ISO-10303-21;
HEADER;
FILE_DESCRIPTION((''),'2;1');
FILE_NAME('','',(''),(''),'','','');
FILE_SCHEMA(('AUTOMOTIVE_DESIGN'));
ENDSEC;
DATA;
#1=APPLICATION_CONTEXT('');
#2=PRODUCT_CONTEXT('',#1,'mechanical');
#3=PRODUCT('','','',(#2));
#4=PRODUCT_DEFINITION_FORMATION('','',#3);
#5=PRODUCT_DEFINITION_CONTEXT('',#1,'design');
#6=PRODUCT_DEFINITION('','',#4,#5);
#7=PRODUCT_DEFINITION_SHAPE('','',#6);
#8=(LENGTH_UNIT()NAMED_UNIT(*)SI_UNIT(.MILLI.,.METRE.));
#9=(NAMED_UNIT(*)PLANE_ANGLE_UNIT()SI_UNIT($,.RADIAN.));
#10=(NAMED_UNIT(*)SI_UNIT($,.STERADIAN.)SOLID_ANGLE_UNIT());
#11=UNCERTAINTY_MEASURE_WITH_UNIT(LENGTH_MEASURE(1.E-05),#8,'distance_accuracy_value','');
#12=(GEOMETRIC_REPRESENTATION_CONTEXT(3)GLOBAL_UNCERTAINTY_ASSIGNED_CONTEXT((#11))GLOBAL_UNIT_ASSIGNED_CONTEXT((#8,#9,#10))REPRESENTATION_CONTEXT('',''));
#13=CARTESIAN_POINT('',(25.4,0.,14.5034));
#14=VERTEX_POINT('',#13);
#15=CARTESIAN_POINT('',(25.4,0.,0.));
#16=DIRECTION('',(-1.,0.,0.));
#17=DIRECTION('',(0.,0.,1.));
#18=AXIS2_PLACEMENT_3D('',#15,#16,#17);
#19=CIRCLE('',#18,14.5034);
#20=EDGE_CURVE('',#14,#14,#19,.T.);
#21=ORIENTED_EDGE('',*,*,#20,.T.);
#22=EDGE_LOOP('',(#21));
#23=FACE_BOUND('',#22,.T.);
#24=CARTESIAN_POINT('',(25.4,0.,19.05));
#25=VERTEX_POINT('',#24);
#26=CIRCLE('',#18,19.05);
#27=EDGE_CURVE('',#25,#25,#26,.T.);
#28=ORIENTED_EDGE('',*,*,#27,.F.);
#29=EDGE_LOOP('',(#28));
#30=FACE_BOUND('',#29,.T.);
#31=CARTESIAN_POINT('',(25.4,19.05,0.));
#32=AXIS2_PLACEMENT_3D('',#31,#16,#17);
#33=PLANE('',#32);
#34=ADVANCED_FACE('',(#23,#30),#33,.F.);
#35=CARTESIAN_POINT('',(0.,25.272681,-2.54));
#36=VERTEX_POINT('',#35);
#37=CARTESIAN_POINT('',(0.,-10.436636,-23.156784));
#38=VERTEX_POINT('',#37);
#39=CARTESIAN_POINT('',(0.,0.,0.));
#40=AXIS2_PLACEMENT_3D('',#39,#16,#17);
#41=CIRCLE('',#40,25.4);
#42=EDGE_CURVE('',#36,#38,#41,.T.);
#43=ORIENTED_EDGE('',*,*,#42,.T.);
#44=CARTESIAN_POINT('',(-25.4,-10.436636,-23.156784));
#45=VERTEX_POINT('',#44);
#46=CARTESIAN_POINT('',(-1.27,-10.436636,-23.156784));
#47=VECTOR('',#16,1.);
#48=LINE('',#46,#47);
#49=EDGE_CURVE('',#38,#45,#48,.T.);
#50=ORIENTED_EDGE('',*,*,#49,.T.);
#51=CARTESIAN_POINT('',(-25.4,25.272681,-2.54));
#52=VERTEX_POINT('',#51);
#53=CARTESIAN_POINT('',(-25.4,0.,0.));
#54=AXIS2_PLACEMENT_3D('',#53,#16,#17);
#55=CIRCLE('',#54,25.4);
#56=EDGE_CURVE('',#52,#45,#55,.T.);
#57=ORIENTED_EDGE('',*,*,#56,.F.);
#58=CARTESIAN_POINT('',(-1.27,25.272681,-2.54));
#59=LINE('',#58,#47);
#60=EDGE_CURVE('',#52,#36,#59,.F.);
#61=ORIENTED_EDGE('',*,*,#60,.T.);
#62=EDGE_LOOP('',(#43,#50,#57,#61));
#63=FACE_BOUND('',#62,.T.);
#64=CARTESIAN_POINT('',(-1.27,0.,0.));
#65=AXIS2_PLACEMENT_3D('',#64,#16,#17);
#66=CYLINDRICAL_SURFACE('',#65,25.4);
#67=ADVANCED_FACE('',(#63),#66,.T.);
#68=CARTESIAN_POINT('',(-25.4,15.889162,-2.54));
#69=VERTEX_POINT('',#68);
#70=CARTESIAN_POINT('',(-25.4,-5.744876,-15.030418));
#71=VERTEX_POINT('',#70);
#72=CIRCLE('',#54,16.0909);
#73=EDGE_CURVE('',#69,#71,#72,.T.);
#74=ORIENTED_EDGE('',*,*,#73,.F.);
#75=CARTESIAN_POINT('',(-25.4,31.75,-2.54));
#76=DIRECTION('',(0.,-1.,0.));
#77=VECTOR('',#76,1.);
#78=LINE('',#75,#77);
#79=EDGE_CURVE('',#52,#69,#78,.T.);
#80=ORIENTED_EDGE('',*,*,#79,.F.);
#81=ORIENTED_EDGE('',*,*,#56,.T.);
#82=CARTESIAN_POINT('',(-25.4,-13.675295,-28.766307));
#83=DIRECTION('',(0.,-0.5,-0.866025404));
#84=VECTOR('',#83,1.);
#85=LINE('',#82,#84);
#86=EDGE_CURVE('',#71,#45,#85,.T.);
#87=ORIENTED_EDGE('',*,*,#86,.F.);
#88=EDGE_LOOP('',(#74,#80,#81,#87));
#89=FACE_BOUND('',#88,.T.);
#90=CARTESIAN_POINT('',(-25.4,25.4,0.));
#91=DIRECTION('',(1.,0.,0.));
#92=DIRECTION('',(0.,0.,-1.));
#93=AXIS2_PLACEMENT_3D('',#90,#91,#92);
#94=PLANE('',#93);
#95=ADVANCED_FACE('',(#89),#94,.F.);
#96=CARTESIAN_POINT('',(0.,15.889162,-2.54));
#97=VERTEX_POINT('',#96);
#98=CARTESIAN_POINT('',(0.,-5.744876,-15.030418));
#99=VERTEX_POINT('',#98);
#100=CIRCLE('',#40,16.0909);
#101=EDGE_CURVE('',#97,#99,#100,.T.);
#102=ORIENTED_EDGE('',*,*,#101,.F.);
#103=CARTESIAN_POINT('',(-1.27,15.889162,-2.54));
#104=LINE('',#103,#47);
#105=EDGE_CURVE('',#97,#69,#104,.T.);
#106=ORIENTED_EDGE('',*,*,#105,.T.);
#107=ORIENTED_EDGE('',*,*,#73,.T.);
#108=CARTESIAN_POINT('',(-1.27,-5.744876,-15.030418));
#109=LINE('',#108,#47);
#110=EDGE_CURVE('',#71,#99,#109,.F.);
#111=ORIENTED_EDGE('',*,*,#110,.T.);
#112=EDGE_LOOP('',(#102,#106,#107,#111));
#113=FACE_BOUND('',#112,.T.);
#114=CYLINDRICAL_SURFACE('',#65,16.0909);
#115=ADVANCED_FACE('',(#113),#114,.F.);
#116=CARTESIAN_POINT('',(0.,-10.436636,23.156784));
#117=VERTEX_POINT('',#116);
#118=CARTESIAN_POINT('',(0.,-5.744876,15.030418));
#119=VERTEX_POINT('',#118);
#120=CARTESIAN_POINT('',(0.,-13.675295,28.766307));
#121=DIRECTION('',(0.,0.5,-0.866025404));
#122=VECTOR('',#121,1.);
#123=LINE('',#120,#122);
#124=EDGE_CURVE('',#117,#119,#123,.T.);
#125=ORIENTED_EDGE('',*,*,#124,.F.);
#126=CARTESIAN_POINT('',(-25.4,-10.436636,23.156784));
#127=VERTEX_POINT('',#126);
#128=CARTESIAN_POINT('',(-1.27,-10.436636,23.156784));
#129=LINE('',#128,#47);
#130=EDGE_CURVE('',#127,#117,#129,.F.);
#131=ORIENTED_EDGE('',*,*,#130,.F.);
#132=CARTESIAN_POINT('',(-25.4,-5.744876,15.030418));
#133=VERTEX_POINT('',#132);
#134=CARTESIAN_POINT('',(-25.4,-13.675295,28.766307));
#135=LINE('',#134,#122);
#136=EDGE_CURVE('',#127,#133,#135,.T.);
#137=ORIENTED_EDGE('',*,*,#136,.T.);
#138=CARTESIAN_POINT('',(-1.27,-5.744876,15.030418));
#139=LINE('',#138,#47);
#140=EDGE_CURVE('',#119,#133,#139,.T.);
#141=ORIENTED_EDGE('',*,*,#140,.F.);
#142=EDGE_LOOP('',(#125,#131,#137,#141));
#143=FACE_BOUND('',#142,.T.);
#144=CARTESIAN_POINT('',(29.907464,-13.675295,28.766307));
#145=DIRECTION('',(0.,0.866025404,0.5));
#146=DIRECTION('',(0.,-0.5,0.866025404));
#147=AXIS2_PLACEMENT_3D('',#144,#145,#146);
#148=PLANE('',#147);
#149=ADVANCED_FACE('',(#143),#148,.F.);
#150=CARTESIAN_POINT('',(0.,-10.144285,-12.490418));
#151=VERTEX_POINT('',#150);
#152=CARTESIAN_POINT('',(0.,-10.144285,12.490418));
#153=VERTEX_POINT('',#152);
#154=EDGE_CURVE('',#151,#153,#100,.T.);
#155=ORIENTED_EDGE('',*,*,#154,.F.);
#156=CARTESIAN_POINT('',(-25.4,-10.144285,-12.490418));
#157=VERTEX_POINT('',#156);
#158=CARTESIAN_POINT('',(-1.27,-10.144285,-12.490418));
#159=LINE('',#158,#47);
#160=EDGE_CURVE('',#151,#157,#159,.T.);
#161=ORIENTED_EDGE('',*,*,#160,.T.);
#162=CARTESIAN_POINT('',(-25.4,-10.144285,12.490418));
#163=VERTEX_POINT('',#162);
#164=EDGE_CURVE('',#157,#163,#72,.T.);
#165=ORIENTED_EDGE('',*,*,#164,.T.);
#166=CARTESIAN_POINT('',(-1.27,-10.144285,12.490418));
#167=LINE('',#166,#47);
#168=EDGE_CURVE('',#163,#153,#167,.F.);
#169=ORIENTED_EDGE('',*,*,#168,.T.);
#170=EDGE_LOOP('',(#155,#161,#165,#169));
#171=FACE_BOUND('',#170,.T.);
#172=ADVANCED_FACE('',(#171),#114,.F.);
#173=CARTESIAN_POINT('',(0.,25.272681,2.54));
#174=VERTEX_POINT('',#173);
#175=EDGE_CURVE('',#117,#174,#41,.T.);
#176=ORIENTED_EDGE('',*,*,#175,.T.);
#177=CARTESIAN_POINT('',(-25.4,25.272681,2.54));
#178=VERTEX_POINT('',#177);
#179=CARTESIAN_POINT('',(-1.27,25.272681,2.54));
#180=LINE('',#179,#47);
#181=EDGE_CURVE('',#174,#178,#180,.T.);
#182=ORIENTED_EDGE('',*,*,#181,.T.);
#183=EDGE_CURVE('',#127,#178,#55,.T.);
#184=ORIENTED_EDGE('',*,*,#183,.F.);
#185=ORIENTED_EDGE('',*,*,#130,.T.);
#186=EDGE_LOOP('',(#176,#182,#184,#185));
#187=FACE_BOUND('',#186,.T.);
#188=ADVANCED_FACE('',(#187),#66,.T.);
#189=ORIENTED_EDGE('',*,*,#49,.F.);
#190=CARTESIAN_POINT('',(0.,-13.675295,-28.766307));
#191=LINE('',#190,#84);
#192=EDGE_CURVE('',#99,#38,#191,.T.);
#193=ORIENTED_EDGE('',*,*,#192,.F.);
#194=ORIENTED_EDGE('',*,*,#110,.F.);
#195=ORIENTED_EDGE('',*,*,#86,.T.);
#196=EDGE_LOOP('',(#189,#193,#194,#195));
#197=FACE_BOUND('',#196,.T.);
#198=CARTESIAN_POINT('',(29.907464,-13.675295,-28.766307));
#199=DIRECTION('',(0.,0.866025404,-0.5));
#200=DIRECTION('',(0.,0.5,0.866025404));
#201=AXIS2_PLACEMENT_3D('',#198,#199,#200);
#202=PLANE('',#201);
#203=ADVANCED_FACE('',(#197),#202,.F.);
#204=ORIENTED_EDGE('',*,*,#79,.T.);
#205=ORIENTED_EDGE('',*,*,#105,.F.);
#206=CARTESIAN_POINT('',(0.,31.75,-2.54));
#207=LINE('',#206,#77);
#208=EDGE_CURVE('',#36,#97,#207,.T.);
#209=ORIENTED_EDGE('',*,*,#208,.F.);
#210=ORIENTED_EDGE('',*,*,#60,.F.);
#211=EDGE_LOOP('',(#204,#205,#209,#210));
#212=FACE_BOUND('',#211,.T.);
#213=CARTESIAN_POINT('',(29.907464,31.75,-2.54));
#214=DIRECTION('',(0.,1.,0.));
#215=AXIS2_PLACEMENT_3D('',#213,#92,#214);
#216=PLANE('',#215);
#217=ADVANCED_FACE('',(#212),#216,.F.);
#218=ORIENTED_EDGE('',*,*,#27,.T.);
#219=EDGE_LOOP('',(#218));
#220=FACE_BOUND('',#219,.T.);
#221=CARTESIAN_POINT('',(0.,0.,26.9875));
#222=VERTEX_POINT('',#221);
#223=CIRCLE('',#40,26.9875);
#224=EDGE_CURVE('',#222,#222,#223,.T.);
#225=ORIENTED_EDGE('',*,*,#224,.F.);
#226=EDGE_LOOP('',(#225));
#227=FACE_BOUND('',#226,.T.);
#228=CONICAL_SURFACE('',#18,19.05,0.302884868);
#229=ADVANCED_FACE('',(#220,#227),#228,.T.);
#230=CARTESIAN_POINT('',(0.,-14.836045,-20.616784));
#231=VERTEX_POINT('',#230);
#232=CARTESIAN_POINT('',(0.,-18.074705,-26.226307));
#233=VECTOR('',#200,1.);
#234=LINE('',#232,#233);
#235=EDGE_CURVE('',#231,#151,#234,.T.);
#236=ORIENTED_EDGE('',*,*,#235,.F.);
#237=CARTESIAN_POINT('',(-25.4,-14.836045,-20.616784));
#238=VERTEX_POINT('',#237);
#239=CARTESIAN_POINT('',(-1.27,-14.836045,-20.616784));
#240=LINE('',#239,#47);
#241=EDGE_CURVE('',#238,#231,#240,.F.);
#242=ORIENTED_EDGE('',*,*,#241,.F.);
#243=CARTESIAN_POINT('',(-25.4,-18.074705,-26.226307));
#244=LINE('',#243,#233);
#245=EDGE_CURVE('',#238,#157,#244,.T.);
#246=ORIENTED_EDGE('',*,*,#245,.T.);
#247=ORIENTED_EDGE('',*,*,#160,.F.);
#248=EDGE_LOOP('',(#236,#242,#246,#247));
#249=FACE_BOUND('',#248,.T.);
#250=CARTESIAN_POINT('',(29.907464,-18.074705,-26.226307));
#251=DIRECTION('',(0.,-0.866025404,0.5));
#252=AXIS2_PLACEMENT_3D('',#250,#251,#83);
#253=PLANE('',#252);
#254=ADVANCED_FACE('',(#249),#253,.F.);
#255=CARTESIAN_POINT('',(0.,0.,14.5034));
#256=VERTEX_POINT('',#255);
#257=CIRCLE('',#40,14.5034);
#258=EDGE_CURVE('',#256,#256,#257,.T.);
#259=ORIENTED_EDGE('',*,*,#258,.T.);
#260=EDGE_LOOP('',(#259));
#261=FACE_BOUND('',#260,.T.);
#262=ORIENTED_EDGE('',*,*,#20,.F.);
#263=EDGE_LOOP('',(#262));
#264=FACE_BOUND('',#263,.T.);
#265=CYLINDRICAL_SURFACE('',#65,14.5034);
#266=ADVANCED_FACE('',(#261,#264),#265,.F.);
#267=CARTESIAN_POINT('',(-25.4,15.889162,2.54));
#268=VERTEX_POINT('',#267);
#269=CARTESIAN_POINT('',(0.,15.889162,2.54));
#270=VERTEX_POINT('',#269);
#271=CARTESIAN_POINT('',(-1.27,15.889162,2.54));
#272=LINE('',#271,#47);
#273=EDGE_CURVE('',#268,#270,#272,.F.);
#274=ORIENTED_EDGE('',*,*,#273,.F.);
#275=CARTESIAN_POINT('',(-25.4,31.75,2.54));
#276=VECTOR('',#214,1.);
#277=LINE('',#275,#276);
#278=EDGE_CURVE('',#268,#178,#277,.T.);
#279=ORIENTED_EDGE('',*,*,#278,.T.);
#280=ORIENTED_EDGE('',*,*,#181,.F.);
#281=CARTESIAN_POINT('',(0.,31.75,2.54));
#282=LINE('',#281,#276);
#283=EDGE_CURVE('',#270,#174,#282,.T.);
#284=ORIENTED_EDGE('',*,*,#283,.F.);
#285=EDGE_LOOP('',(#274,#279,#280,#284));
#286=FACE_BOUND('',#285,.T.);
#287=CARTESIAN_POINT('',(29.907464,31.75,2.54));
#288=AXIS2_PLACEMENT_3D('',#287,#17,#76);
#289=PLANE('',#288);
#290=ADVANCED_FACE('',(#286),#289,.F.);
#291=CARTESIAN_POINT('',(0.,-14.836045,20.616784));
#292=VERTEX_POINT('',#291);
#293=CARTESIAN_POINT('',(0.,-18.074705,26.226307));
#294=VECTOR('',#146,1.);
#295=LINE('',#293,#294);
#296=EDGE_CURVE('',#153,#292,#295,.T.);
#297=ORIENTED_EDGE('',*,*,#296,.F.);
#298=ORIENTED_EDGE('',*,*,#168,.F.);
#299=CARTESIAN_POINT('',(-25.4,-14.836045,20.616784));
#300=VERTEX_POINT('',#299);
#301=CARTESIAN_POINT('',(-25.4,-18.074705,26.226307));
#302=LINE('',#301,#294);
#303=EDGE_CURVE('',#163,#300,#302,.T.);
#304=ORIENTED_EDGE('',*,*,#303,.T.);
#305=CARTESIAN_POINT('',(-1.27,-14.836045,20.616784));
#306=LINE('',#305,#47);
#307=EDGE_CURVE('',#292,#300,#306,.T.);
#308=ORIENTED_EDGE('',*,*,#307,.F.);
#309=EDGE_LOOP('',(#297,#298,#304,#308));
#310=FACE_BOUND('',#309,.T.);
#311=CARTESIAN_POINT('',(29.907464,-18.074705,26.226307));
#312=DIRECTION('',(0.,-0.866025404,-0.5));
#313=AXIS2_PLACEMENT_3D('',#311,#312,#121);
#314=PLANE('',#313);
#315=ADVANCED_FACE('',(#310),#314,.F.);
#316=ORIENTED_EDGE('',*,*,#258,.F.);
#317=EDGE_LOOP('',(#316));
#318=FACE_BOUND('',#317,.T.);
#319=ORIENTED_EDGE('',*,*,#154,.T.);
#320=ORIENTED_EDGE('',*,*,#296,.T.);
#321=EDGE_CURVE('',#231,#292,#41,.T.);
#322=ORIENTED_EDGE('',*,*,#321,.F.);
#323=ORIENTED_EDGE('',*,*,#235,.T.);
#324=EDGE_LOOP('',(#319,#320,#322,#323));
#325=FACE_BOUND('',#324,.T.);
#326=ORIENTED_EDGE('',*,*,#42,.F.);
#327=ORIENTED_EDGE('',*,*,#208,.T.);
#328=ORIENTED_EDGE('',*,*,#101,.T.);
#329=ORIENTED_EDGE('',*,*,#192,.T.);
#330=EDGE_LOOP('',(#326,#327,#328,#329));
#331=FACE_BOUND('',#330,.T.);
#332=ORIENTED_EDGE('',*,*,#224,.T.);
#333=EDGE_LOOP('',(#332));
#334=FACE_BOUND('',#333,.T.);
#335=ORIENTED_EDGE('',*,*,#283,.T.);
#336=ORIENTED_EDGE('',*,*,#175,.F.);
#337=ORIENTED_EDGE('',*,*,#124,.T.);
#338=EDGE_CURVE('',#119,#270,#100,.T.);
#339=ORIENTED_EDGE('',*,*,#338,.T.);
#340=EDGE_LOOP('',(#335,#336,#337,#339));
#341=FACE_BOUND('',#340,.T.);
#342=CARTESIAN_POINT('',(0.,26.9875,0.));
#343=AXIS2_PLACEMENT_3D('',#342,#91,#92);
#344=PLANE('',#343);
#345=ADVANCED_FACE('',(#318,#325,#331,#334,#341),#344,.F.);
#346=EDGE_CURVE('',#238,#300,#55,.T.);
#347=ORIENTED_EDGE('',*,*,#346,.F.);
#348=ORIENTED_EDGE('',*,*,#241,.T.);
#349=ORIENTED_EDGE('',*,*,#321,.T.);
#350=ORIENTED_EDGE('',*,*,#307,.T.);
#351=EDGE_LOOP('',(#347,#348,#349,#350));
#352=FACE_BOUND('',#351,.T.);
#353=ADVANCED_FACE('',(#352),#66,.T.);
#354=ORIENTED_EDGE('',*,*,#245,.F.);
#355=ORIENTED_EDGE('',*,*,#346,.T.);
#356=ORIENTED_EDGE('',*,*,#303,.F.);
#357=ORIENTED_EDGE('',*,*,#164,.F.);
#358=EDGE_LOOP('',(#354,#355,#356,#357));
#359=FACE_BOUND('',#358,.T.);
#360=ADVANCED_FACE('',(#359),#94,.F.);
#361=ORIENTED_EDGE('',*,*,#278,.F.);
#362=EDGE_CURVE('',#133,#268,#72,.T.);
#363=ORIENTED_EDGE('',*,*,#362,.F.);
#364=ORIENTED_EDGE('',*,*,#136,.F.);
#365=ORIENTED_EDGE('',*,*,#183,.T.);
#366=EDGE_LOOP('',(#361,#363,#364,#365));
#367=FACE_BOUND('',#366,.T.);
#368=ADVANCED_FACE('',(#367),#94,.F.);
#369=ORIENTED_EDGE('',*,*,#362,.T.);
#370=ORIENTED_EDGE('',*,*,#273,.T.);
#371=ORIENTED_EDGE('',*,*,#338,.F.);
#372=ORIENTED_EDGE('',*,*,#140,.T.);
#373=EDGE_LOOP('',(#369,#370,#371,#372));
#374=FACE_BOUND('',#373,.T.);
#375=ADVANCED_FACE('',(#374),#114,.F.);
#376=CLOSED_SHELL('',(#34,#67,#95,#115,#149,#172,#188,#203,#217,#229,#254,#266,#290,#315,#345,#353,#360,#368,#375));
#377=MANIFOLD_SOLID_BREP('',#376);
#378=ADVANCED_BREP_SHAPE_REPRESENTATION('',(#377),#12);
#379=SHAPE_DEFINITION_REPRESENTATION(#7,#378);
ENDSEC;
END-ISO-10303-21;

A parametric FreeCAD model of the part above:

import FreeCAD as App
import Part
import Sketcher

V = App.Vector
Q = App.Units.Quantity


def add_polygon(sketch, points):
    """Adds a closed chain of lines whose ends are joined by coincident constraints."""
    first, n = sketch.GeometryCount, len(points)
    for a, b in zip(points, points[1:] + points[:1]):
        sketch.addGeometry(Part.LineSegment(App.Vector(*a, 0), App.Vector(*b, 0)), False)
    for i in range(n):
        sketch.addConstraint(Sketcher.Constraint("Coincident", first + i, 2, first + (i + 1) % n, 1))

doc = App.newDocument("Part")
body = doc.addObject("PartDesign::Body", "Body")

sketch1 = doc.addObject("Sketcher::SketchObject", "Sketch")
body.addObject(sketch1)
sketch1.AttachmentSupport = (doc.XY_Plane, [""])
sketch1.MapMode = "FlatFace"
add_polygon(sketch1, [(0, 14.5), (25.4, 14.5), (25.4, 19.1), (0, 27), (0, 25.4), (-25.4, 25.4), (-25.4, 16.1), (0, 16.1)])
sketch1.addConstraint([
    Sketcher.Constraint("Horizontal", 0),
    Sketcher.Constraint("Vertical", 1),
    Sketcher.Constraint("Vertical", 3),
    Sketcher.Constraint("Horizontal", 4),
    Sketcher.Constraint("Vertical", 5),
    Sketcher.Constraint("Horizontal", 6),
    Sketcher.Constraint("Vertical", 7),
    Sketcher.Constraint("PointOnObject", 2, 2, -2),
    Sketcher.Constraint("PointOnObject", 6, 2, -2),
    Sketcher.Constraint("Equal", 0, 4),
    Sketcher.Constraint("Equal", 3, 7),
    Sketcher.Constraint("DistanceX", 0, 1, 0, 2, Q("1 in")),
    Sketcher.Constraint("DistanceY", -1, 1, 3, 2, Q("1 in")),
    Sketcher.Constraint("DistanceY", 1, 1, 1, 2, Q("0.179 in")),
    Sketcher.Constraint("DistanceY", 3, 2, 3, 1, Q("0.0625 in")),
    Sketcher.Constraint("DistanceY", -1, 1, 1, 2, Q("0.75 in")),
])
revolution = doc.addObject("PartDesign::Revolution", "Revolution")
body.addObject(revolution)
revolution.Profile = sketch1
revolution.ReferenceAxis = (sketch1, ["H_Axis"])
revolution.Angle = 360

sketch2 = doc.addObject("Sketcher::SketchObject", "Sketch001")
body.addObject(sketch2)
sketch2.AttachmentSupport = (doc.YZ_Plane, [""])
sketch2.MapMode = "FlatFace"
sketch2.AttachmentOffset = App.Placement(V(0, 0, -1 * 25.4), App.Rotation())
add_polygon(sketch2, [(-14, 29), (-1, 7), (-5, 4), (-18, 26)])
add_polygon(sketch2, [(32, -3), (6, -3), (6, 3), (32, 3)])
add_polygon(sketch2, [(-18, -26), (-5, -4), (-1, -7), (-14, -29)])
sketch2.addConstraint([
    Sketcher.Constraint("Horizontal", 4),
    Sketcher.Constraint("Vertical", 5),
    Sketcher.Constraint("Horizontal", 6),
    Sketcher.Constraint("Vertical", 7),
    Sketcher.Constraint("Symmetric", 1, 2, 8, 2, -1),
    Sketcher.Constraint("Symmetric", 0, 2, 9, 2, -1),
    Sketcher.Constraint("Symmetric", 3, 2, 10, 2, -1),
    Sketcher.Constraint("Symmetric", 2, 2, 11, 2, -1),
    Sketcher.Constraint("Perpendicular", 0, 1),
    Sketcher.Constraint("Perpendicular", 1, 2),
    Sketcher.Constraint("Perpendicular", 2, 3),
    Sketcher.Constraint("DistanceX", 4, 2, 4, 1, Q("1 in")),
    Sketcher.Constraint("Distance", 0, Q("1 in")),
    Sketcher.Constraint("DistanceY", 5, 1, 5, 2, Q("0.2 in")),
    Sketcher.Constraint("Angle", 0, Q("-60 deg")),
    Sketcher.Constraint("Distance", 1, Q("0.2 in")),
    Sketcher.Constraint("DistanceY", 4, 2, -1, 1, Q("0.1 in")),
    Sketcher.Constraint("DistanceX", -1, 1, 4, 2, Q("0.25 in")),
    Sketcher.Constraint("DistanceY", -1, 1, 0, 2, Q("6.769261 mm")),
    Sketcher.Constraint("DistanceX", 0, 2, -1, 1, Q("0.975295 mm")),
])
pocket1 = doc.addObject("PartDesign::Pocket", "Pocket")
body.addObject(pocket1)
pocket1.Profile = sketch2
pocket1.Length = Q("1 in")
pocket1.Reversed = True

doc.recompute()
